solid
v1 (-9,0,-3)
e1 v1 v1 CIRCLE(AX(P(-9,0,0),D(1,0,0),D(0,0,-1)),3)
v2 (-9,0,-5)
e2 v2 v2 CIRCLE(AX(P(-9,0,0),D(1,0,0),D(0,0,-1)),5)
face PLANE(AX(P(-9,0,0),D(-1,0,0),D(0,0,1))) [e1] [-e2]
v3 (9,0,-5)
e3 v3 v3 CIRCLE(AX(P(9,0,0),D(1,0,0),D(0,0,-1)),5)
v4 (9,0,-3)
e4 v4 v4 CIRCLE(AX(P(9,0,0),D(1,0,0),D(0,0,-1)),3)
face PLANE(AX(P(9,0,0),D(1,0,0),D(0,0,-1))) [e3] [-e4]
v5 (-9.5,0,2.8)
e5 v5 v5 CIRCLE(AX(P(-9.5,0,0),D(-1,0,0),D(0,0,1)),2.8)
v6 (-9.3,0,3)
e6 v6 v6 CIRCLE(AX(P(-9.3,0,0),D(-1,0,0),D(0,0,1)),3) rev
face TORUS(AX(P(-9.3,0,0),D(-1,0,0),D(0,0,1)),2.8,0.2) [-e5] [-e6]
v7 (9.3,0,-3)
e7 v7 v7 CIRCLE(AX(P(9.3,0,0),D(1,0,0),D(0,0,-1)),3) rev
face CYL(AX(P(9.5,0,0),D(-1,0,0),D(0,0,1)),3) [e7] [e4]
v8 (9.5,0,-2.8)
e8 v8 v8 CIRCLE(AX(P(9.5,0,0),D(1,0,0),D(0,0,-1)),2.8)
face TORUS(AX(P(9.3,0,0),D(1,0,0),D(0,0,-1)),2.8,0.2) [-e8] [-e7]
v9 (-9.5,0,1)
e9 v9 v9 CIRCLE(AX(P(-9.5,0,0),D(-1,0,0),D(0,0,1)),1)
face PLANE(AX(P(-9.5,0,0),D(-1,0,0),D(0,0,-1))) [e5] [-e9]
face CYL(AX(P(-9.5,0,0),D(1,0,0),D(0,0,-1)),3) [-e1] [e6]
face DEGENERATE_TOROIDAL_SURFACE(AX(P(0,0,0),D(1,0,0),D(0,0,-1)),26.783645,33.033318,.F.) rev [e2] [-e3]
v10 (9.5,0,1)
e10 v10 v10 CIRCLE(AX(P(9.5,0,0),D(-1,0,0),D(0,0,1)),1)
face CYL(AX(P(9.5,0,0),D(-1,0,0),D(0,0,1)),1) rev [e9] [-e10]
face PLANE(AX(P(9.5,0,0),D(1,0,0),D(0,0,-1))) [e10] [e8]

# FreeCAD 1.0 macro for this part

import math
import FreeCAD as App
import Part
import Sketcher
Q = App.Units.Quantity


def edges_at(feature, points):
    """Names of the edges that pass closest to the given points."""
    edges = feature.Shape.Edges
    near = lambda p: min(range(len(edges)), key=lambda i: edges[i].distToShape(Part.Vertex(*p))[0])
    return sorted({f"Edge{near(p) + 1}" for p in points})

doc = App.newDocument("Part")
body = doc.addObject("PartDesign::Body", "Body")

# Sketch on XZ plane
sketch1 = doc.addObject("Sketcher::SketchObject", "Sketch")
body.addObject(sketch1)
sketch1.AttachmentSupport = (doc.XZ_Plane, [""])
sketch1.MapMode = "FlatFace"
sketch1.addGeometry([
    Part.LineSegment(App.Vector(-9, -5, 0), App.Vector(-9, 0, 0)),
    Part.LineSegment(App.Vector(-9, 0, 0), App.Vector(9, 0, 0)),
    Part.LineSegment(App.Vector(9, 0, 0), App.Vector(9, -5, 0)),
    Part.ArcOfCircle(Part.Circle(App.Vector(0, 27, 0), App.Vector(0, 0, 1), 33), math.radians(-106), math.radians(-74)),
], False)
sketch1.addConstraint([
    Sketcher.Constraint("Coincident", 0, 2, 1, 1),
    Sketcher.Constraint("Coincident", 1, 2, 2, 1),
    Sketcher.Constraint("Coincident", 2, 2, 3, 2),
    Sketcher.Constraint("Coincident", 3, 1, 0, 1),
    Sketcher.Constraint("Vertical", 0),
    Sketcher.Constraint("Horizontal", 1),
    Sketcher.Constraint("Vertical", 2),
    Sketcher.Constraint("Symmetric", 0, 2, 1, 2, -1, 1),
    Sketcher.Constraint("PointOnObject", 3, 3, -2),
    Sketcher.Constraint("DistanceX", 1, 1, 1, 2, Q("18 mm")),
    Sketcher.Constraint("DistanceY", 0, 1, 0, 2, Q("5 mm")),
    Sketcher.Constraint("Radius", 3, Q("33.033318 mm")),
])
revolution = doc.addObject("PartDesign::Revolution", "Revolution")
body.addObject(revolution)
revolution.Profile = sketch1
revolution.ReferenceAxis = (sketch1, ["H_Axis"])
revolution.Angle = 360

# Sketch on YZ plane
sketch2 = doc.addObject("Sketcher::SketchObject", "Sketch001")
body.addObject(sketch2)
sketch2.AttachmentSupport = (doc.YZ_Plane, [""])
sketch2.MapMode = "FlatFace"
sketch2.AttachmentOffset = App.Placement(App.Vector(0, 0, 9), App.Rotation())
sketch2.addGeometry(Part.Circle(App.Vector(0, 0, 0), App.Vector(0, 0, 1), 3), False)
sketch2.addConstraint([
    Sketcher.Constraint("Coincident", 0, 3, -1, 1),
    Sketcher.Constraint("Diameter", 0, Q("6 mm")),
])
pad1 = doc.addObject("PartDesign::Pad", "Pad")
body.addObject(pad1)
pad1.Profile = sketch2
pad1.Length = 0.5
doc.recompute()

mirrored = doc.addObject("PartDesign::Mirrored", "Mirrored")
body.addObject(mirrored)
mirrored.Originals = [pad1]
mirrored.MirrorPlane = (doc.YZ_Plane, [""])
body.Tip = mirrored

# Sketch on YZ plane
sketch3 = doc.addObject("Sketcher::SketchObject", "Sketch002")
body.addObject(sketch3)
sketch3.AttachmentSupport = (doc.YZ_Plane, [""])
sketch3.MapMode = "FlatFace"
sketch3.AttachmentOffset = App.Placement(App.Vector(0, 0, -9.5), App.Rotation())
sketch3.addGeometry(Part.Circle(App.Vector(0, 0, 0), App.Vector(0, 0, 1), 1), False)
sketch3.addConstraint([
    Sketcher.Constraint("Coincident", 0, 3, -1, 1),
    Sketcher.Constraint("Diameter", 0, Q("2 mm")),
])
pocket1 = doc.addObject("PartDesign::Pocket", "Pocket")
body.addObject(pocket1)
pocket1.Profile = sketch3
pocket1.Type = "ThroughAll"
pocket1.Reversed = True
doc.recompute()

fillet = doc.addObject("PartDesign::Fillet", "Fillet")
body.addObject(fillet)
fillet.Base = (pocket1, edges_at(pocket1, [(9.5, 0, 3), (-9.5, 0, 3)]))
fillet.Radius = 0.2

doc.recompute()
